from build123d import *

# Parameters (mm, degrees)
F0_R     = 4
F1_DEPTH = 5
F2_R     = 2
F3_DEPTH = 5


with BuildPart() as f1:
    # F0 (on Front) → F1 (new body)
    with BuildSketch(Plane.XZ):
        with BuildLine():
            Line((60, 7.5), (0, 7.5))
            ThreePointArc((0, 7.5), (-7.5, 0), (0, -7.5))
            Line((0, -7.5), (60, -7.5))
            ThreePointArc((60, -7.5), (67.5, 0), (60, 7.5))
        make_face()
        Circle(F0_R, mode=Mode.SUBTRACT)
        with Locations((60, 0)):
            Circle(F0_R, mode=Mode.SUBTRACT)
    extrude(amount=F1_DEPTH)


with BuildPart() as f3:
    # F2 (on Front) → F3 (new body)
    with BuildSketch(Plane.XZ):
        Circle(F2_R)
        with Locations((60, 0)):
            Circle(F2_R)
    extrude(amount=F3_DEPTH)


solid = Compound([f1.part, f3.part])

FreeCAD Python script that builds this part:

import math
import FreeCAD as App
import Part
import Sketcher

V = App.Vector
Q = App.Units.Quantity

doc = App.newDocument("Part")
body = doc.addObject("PartDesign::Body", "Body")

sketch1 = doc.addObject("Sketcher::SketchObject", "Sketch")
body.addObject(sketch1)
sketch1.AttachmentSupport = (doc.XZ_Plane, [""])
sketch1.MapMode = "FlatFace"
sketch1.addGeometry(Part.LineSegment(V(60, 7.5, 0), V(0, 7.5, 0)), False)
sketch1.addGeometry(Part.ArcOfCircle(Part.Circle(V(0, 0, 0), V(0, 0, 1), 7.5), math.radians(90), math.radians(270)), False)
sketch1.addGeometry(Part.LineSegment(V(0, -7.5, 0), V(60, -7.5, 0)), False)
sketch1.addGeometry(Part.ArcOfCircle(Part.Circle(V(60, 0, 0), V(0, 0, 1), 7.5), math.radians(-90), math.radians(90)), False)
sketch1.addGeometry(Part.Circle(V(0, 0, 0), V(0, 0, 1), 4), False)
sketch1.addGeometry(Part.Circle(V(60, 0, 0), V(0, 0, 1), 4), False)
sketch1.addConstraint(Sketcher.Constraint("Tangent", 0, 2, 1, 1))
sketch1.addConstraint(Sketcher.Constraint("Tangent", 1, 2, 2, 1))
sketch1.addConstraint(Sketcher.Constraint("Tangent", 2, 2, 3, 1))
sketch1.addConstraint(Sketcher.Constraint("Tangent", 3, 2, 0, 1))
sketch1.addConstraint(Sketcher.Constraint("Horizontal", 0))
sketch1.addConstraint(Sketcher.Constraint("Horizontal", 2))
sketch1.addConstraint(Sketcher.Constraint("Coincident", 1, 3, -1, 1))
sketch1.addConstraint(Sketcher.Constraint("Coincident", 4, 3, -1, 1))
sketch1.addConstraint(Sketcher.Constraint("Coincident", 5, 3, 3, 3))
sketch1.addConstraint(Sketcher.Constraint("Equal", 4, 5))
sketch1.addConstraint(Sketcher.Constraint("Diameter", 4, Q("8 mm")))
sketch1.addConstraint(Sketcher.Constraint("Radius", 1, Q("7.5 mm")))
sketch1.addConstraint(Sketcher.Constraint("DistanceX", 0, 2, 0, 1, Q("60 mm")))
pad1 = doc.addObject("PartDesign::Pad", "Pad")
body.addObject(pad1)
pad1.Profile = sketch1
pad1.Length = 5
body2 = doc.addObject("PartDesign::Body", "Body001")
body2.AllowCompound = True

sketch2 = doc.addObject("Sketcher::SketchObject", "Sketch001")
body2.addObject(sketch2)
sketch2.AttachmentSupport = (doc.getObject("XZ_Plane001"), [""])
sketch2.MapMode = "FlatFace"
sketch2.addGeometry(Part.Circle(V(0, 0, 0), V(0, 0, 1), 2), False)
sketch2.addGeometry(Part.Circle(V(60, 0, 0), V(0, 0, 1), 2), False)
sketch2.addConstraint(Sketcher.Constraint("Coincident", 0, 3, -1, 1))
sketch2.addConstraint(Sketcher.Constraint("Equal", 0, 1))
sketch2.addConstraint(Sketcher.Constraint("PointOnObject", 1, 3, -1))
sketch2.addConstraint(Sketcher.Constraint("Diameter", 0, Q("4 mm")))
sketch2.addConstraint(Sketcher.Constraint("DistanceX", -1, 1, 1, 3, Q("60 mm")))
pad2 = doc.addObject("PartDesign::Pad", "Pad001")
body2.addObject(pad2)
pad2.Profile = sketch2
pad2.Length = 5

doc.recompute()
